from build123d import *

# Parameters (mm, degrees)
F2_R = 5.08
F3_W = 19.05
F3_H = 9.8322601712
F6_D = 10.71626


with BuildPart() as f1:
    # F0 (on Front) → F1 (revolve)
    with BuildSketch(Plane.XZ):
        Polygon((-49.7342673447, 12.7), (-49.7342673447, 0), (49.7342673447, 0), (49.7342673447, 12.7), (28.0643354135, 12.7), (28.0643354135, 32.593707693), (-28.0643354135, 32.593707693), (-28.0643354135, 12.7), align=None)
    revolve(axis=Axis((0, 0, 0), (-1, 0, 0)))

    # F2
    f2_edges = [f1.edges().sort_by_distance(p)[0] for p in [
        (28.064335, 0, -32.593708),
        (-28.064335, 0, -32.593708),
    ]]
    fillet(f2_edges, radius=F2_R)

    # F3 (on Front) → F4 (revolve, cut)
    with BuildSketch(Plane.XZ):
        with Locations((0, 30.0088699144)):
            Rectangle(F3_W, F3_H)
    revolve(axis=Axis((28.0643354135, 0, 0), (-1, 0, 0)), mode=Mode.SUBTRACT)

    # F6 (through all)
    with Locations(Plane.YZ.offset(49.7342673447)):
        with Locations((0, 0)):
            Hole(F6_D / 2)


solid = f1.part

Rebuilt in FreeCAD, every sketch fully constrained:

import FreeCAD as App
import Part
import Sketcher
Q = App.Units.Quantity


def edges_at(feature, points):
    """Names of the edges that pass closest to the given points."""
    edges = feature.Shape.Edges
    near = lambda p: min(range(len(edges)), key=lambda i: edges[i].distToShape(Part.Vertex(*p))[0])
    return sorted({f"Edge{near(p) + 1}" for p in points})


def add_polygon(sketch, points):
    """Adds a closed chain of lines whose ends are joined by coincident constraints."""
    first, n = sketch.GeometryCount, len(points)
    for a, b in zip(points, points[1:] + points[:1]):
        sketch.addGeometry(Part.LineSegment(App.Vector(*a, 0), App.Vector(*b, 0)), False)
    for i in range(n):
        sketch.addConstraint(Sketcher.Constraint("Coincident", first + i, 2, first + (i + 1) % n, 1))

doc = App.newDocument("Part")
body = doc.addObject("PartDesign::Body", "Body")

sketch1 = body.newObject("Sketcher::SketchObject", "Sketch")
sketch1.AttachmentSupport = (doc.getObject("XZ_Plane"), [""])
sketch1.MapMode = "FlatFace"
add_polygon(sketch1, [(-50, 13), (-50, 0), (50, 0), (50, 13), (28, 13), (28, 33), (-28, 33), (-28, 13)])
sketch1.addConstraint([
    Sketcher.Constraint("Vertical", 0),
    Sketcher.Constraint("Horizontal", 1),
    Sketcher.Constraint("Vertical", 2),
    Sketcher.Constraint("Horizontal", 3),
    Sketcher.Constraint("Vertical", 4),
    Sketcher.Constraint("Horizontal", 5),
    Sketcher.Constraint("Vertical", 6),
    Sketcher.Constraint("Horizontal", 7),
    Sketcher.Constraint("Symmetric", 0, 2, 1, 2, -1, 1),
    Sketcher.Constraint("Symmetric", 3, 2, 6, 2, -2),
    Sketcher.Constraint("DistanceY", 0, 2, 0, 1, Q("0.5 in")),
    Sketcher.Constraint("DistanceX", 3, 2, 3, 1, 21.669932),
    Sketcher.Constraint("DistanceX", 5, 2, 5, 1, 56.128671),
    Sketcher.Constraint("DistanceY", 4, 1, 4, 2, 19.893708),
])
revolution = body.newObject("PartDesign::Revolution", "Revolution")
revolution.Profile = sketch1
revolution.ReferenceAxis = (sketch1, ["H_Axis"])
revolution.Angle = 360
doc.recompute()

fillet = body.newObject("PartDesign::Fillet", "Fillet")
fillet.Base = (revolution, edges_at(revolution, [(28.064, 0, -32.594), (-28.064, 0, -32.594)]))
fillet.Radius = Q("0.2 in")

sketch2 = body.newObject("Sketcher::SketchObject", "Sketch001")
sketch2.AttachmentSupport = (doc.getObject("XZ_Plane"), [""])
sketch2.MapMode = "FlatFace"
add_polygon(sketch2, [(-10, 35), (-10, 25), (10, 25), (10, 35)])
sketch2.addConstraint([
    Sketcher.Constraint("Vertical", 0),
    Sketcher.Constraint("Horizontal", 1),
    Sketcher.Constraint("Vertical", 2),
    Sketcher.Constraint("Horizontal", 3),
    Sketcher.Constraint("DistanceX", 1, 1, 1, 2, Q("0.75 in")),
    Sketcher.Constraint("DistanceX", 0, 2, -1, 1, Q("0.375 in")),
    Sketcher.Constraint("DistanceY", -1, 1, 2, 2, Q("1.375 in")),
    Sketcher.Constraint("DistanceY", 0, 2, 0, 1, 9.83226),
])
groove = body.newObject("PartDesign::Groove", "Groove")
groove.Profile = sketch2
groove.ReferenceAxis = (sketch2, ["H_Axis"])
groove.Angle = 360

sketch3 = body.newObject("Sketcher::SketchObject", "Sketch002")
sketch3.AttachmentSupport = (doc.getObject("YZ_Plane"), [""])
sketch3.MapMode = "FlatFace"
sketch3.AttachmentOffset = App.Placement(App.Vector(0, 0, 49.734267), App.Rotation())
sketch3.addGeometry(Part.Circle(App.Vector(0, 0, 0), App.Vector(0, 0, 1), 5), False)
sketch3.addConstraint([
    Sketcher.Constraint("Coincident", 0, 3, -1, 1),
    Sketcher.Constraint("Diameter", 0, Q("0.4219 in")),
])
doc.recompute()
hole = body.newObject("PartDesign::Hole", "Hole")
hole.Profile = sketch3
hole.ThreadType = "None"
hole.Diameter = Q("0.4219 in")
hole.DepthType = "ThroughAll"

doc.recompute()
